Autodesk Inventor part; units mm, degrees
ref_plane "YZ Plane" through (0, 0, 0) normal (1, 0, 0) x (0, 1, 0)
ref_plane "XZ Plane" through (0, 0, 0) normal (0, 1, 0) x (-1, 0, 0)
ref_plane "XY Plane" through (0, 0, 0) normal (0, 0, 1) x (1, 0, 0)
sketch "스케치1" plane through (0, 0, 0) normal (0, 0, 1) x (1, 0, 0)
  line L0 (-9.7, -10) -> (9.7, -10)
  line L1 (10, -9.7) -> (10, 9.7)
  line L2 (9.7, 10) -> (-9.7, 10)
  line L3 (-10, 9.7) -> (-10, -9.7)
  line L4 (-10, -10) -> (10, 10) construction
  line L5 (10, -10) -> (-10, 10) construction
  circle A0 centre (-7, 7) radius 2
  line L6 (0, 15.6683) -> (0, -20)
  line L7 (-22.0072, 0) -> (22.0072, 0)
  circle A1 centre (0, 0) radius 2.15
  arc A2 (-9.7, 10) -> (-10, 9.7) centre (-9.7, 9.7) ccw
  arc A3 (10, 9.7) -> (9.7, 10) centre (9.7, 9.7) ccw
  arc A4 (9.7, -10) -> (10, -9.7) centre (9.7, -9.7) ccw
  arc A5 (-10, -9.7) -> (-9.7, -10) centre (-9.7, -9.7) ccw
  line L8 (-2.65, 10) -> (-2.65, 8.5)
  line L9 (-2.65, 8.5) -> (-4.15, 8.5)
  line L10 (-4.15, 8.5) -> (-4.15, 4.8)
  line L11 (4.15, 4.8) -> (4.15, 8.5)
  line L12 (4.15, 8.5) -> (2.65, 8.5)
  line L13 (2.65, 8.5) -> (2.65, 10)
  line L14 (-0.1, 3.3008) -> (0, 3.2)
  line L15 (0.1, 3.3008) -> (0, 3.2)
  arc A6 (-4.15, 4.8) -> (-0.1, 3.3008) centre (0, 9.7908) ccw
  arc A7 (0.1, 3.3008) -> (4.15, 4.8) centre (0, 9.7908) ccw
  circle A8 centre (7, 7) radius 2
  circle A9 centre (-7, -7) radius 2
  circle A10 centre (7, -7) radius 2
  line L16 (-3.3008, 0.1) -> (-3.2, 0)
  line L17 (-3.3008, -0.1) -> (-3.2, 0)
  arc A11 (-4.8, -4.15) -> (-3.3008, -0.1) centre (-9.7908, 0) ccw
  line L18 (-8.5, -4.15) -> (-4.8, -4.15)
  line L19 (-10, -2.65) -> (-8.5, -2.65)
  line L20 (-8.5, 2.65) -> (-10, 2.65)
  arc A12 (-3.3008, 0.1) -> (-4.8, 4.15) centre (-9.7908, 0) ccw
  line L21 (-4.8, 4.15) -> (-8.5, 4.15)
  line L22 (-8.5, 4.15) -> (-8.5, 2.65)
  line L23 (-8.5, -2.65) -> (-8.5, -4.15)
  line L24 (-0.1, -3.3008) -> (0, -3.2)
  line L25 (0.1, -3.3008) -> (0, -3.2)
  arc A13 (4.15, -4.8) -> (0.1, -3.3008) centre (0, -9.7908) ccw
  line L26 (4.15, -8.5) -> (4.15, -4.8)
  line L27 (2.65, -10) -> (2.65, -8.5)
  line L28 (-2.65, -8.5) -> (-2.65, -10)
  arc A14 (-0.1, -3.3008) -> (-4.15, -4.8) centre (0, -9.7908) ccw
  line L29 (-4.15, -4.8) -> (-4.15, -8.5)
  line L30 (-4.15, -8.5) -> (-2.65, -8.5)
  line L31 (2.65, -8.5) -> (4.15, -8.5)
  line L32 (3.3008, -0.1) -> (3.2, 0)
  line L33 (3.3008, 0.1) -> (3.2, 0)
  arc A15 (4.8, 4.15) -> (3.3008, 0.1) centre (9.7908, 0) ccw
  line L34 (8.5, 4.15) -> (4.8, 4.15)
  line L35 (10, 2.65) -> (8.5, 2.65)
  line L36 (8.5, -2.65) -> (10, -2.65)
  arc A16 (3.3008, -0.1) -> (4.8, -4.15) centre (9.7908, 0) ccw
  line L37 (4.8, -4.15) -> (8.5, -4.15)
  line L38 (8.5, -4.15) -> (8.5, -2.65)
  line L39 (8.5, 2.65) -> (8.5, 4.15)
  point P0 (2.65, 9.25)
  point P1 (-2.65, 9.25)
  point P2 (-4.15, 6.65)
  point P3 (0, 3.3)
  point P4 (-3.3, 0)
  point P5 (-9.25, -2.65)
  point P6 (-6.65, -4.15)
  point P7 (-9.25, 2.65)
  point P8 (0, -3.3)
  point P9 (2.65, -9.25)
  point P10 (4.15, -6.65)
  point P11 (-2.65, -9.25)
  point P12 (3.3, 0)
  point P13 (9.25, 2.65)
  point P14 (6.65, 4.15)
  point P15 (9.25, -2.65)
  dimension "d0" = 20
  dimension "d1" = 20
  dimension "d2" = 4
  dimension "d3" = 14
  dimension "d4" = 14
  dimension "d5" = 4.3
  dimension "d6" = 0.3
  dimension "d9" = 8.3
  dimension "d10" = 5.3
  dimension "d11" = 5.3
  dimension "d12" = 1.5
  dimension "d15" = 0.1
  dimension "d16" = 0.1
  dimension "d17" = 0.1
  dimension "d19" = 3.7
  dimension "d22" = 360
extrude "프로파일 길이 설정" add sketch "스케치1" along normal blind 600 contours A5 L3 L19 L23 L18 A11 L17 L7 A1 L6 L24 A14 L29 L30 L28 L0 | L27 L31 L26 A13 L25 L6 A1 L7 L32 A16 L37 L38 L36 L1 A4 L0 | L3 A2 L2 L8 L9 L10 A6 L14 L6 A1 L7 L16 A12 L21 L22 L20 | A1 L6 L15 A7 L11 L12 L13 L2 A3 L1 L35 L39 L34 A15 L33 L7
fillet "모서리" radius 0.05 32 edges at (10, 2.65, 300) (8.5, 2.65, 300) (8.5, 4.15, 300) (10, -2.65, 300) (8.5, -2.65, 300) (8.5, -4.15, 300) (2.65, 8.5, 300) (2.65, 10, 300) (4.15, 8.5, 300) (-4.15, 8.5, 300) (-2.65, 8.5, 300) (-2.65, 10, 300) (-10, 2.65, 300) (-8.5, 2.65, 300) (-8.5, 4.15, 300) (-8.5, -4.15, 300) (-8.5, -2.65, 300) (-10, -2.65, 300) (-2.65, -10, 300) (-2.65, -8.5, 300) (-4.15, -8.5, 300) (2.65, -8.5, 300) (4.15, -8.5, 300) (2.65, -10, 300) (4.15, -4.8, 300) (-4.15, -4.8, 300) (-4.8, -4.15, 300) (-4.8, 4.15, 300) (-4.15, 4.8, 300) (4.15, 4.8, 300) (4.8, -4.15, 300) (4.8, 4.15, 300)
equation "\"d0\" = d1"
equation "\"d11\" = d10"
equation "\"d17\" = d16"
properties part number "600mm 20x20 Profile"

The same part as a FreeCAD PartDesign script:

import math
import FreeCAD as App
import Part
import Sketcher
from FreeCAD import Vector


def edges_at(feature, points):
    """Names of the edges that pass closest to the given points."""
    edges = feature.Shape.Edges
    near = lambda p: min(range(len(edges)), key=lambda i: edges[i].distToShape(Part.Vertex(*p))[0])
    return sorted({f"Edge{near(p) + 1}" for p in points})

doc = App.newDocument("Part")
body = doc.addObject("PartDesign::Body", "Body")

# Sketch on XY plane
sketch1 = body.newObject("Sketcher::SketchObject", "Sketch")
sketch1.AttachmentSupport = (doc.getObject("XY_Plane"), [""])
sketch1.MapMode = "FlatFace"
sketch1.addGeometry([
    Part.ArcOfCircle(Part.Circle(Vector(-9.7, -9.7, 0), Vector(0, 0, 1), 0.3), math.radians(180), math.radians(270)),  # 0
    Part.LineSegment(Vector(-9.7, -10, 0), Vector(-2.65, -10, 0)),  # 1
    Part.LineSegment(Vector(-2.65, -10, 0), Vector(-2.65, -8.5, 0)),  # 2
    Part.LineSegment(Vector(-2.65, -8.5, 0), Vector(-4.15, -8.5, 0)),  # 3
    Part.LineSegment(Vector(-4.15, -8.5, 0), Vector(-4.15, -4.8, 0)),  # 4
    Part.ArcOfCircle(Part.Circle(Vector(0, -9.79, 0), Vector(0, 0, 1), 6.49), math.radians(91), math.radians(130)),  # 5
    Part.LineSegment(Vector(-0.1, -3.3, 0), Vector(0, -3.2, 0)),  # 6
    Part.LineSegment(Vector(0, -3.2, 0), Vector(0.1, -3.3, 0)),  # 7
    Part.ArcOfCircle(Part.Circle(Vector(0, -9.79, 0), Vector(0, 0, 1), 6.49), math.radians(50), math.radians(89)),  # 8
    Part.LineSegment(Vector(4.15, -4.8, 0), Vector(4.15, -8.5, 0)),  # 9
    Part.LineSegment(Vector(4.15, -8.5, 0), Vector(2.65, -8.5, 0)),  # 10
    Part.LineSegment(Vector(2.65, -8.5, 0), Vector(2.65, -10, 0)),  # 11
    Part.LineSegment(Vector(2.65, -10, 0), Vector(9.7, -10, 0)),  # 12
    Part.ArcOfCircle(Part.Circle(Vector(9.7, -9.7, 0), Vector(0, 0, 1), 0.3), math.radians(-90), math.radians(0)),  # 13
    Part.LineSegment(Vector(10, -9.7, 0), Vector(10, -2.65, 0)),  # 14
    Part.LineSegment(Vector(10, -2.65, 0), Vector(8.5, -2.65, 0)),  # 15
    Part.LineSegment(Vector(8.5, -2.65, 0), Vector(8.5, -4.15, 0)),  # 16
    Part.LineSegment(Vector(8.5, -4.15, 0), Vector(4.8, -4.15, 0)),  # 17
    Part.ArcOfCircle(Part.Circle(Vector(9.79, 0, 0), Vector(0, 0, 1), 6.49), math.radians(-179), math.radians(-140)),  # 18
    Part.LineSegment(Vector(3.3, -0.1, 0), Vector(3.2, 0, 0)),  # 19
    Part.LineSegment(Vector(3.2, 0, 0), Vector(3.3, 0.1, 0)),  # 20
    Part.ArcOfCircle(Part.Circle(Vector(9.79, 0, 0), Vector(0, 0, 1), 6.49), math.radians(140), math.radians(179)),  # 21
    Part.LineSegment(Vector(4.8, 4.15, 0), Vector(8.5, 4.15, 0)),  # 22
    Part.LineSegment(Vector(8.5, 4.15, 0), Vector(8.5, 2.65, 0)),  # 23
    Part.LineSegment(Vector(8.5, 2.65, 0), Vector(10, 2.65, 0)),  # 24
    Part.LineSegment(Vector(10, 2.65, 0), Vector(10, 9.7, 0)),  # 25
    Part.ArcOfCircle(Part.Circle(Vector(9.7, 9.7, 0), Vector(0, 0, 1), 0.3), math.radians(0), math.radians(90)),  # 26
    Part.LineSegment(Vector(9.7, 10, 0), Vector(2.65, 10, 0)),  # 27
    Part.LineSegment(Vector(2.65, 10, 0), Vector(2.65, 8.5, 0)),  # 28
    Part.LineSegment(Vector(2.65, 8.5, 0), Vector(4.15, 8.5, 0)),  # 29
    Part.LineSegment(Vector(4.15, 8.5, 0), Vector(4.15, 4.8, 0)),  # 30
    Part.ArcOfCircle(Part.Circle(Vector(0, 9.79, 0), Vector(0, 0, 1), 6.49), math.radians(-89), math.radians(-50)),  # 31
    Part.LineSegment(Vector(0.1, 3.3, 0), Vector(0, 3.2, 0)),  # 32
    Part.LineSegment(Vector(0, 3.2, 0), Vector(-0.1, 3.3, 0)),  # 33
    Part.ArcOfCircle(Part.Circle(Vector(0, 9.79, 0), Vector(0, 0, 1), 6.49), math.radians(-130), math.radians(-91)),  # 34
    Part.LineSegment(Vector(-4.15, 4.8, 0), Vector(-4.15, 8.5, 0)),  # 35
    Part.LineSegment(Vector(-4.15, 8.5, 0), Vector(-2.65, 8.5, 0)),  # 36
    Part.LineSegment(Vector(-2.65, 8.5, 0), Vector(-2.65, 10, 0)),  # 37
    Part.LineSegment(Vector(-2.65, 10, 0), Vector(-9.7, 10, 0)),  # 38
    Part.ArcOfCircle(Part.Circle(Vector(-9.7, 9.7, 0), Vector(0, 0, 1), 0.3), math.radians(90), math.radians(180)),  # 39
    Part.LineSegment(Vector(-10, 9.7, 0), Vector(-10, 2.65, 0)),  # 40
    Part.LineSegment(Vector(-10, 2.65, 0), Vector(-8.5, 2.65, 0)),  # 41
    Part.LineSegment(Vector(-8.5, 2.65, 0), Vector(-8.5, 4.15, 0)),  # 42
    Part.LineSegment(Vector(-8.5, 4.15, 0), Vector(-4.8, 4.15, 0)),  # 43
    Part.ArcOfCircle(Part.Circle(Vector(-9.79, 0, 0), Vector(0, 0, 1), 6.49), math.radians(1), math.radians(40)),  # 44
    Part.LineSegment(Vector(-3.3, 0.1, 0), Vector(-3.2, 0, 0)),  # 45
    Part.LineSegment(Vector(-3.2, 0, 0), Vector(-3.3, -0.1, 0)),  # 46
    Part.ArcOfCircle(Part.Circle(Vector(-9.79, 0, 0), Vector(0, 0, 1), 6.49), math.radians(-40), math.radians(-1)),  # 47
    Part.LineSegment(Vector(-4.8, -4.15, 0), Vector(-8.5, -4.15, 0)),  # 48
    Part.LineSegment(Vector(-8.5, -4.15, 0), Vector(-8.5, -2.65, 0)),  # 49
    Part.LineSegment(Vector(-8.5, -2.65, 0), Vector(-10, -2.65, 0)),  # 50
    Part.LineSegment(Vector(-10, -2.65, 0), Vector(-10, -9.7, 0)),  # 51
    Part.Circle(Vector(0, 0, 0), Vector(0, 0, 1), 2.15),  # 52
    Part.Circle(Vector(-7, -7, 0), Vector(0, 0, 1), 2),  # 53
    Part.Circle(Vector(-7, 7, 0), Vector(0, 0, 1), 2),  # 54
    Part.Circle(Vector(7, -7, 0), Vector(0, 0, 1), 2),  # 55
    Part.Circle(Vector(7, 7, 0), Vector(0, 0, 1), 2),  # 56
], False)
sketch1.addConstraint([
    Sketcher.Constraint("Tangent", 0, 2, 1, 1),
    Sketcher.Constraint("Coincident", 1, 2, 2, 1),
    Sketcher.Constraint("Coincident", 2, 2, 3, 1),
    Sketcher.Constraint("Coincident", 3, 2, 4, 1),
    Sketcher.Constraint("Coincident", 4, 2, 5, 2),
    Sketcher.Constraint("Coincident", 5, 1, 6, 1),
    Sketcher.Constraint("Coincident", 6, 2, 7, 1),
    Sketcher.Constraint("Coincident", 7, 2, 8, 2),
    Sketcher.Constraint("Coincident", 8, 1, 9, 1),
    Sketcher.Constraint("Coincident", 9, 2, 10, 1),
    Sketcher.Constraint("Coincident", 10, 2, 11, 1),
    Sketcher.Constraint("Coincident", 11, 2, 12, 1),
    Sketcher.Constraint("Tangent", 12, 2, 13, 1),
    Sketcher.Constraint("Tangent", 13, 2, 14, 1),
    Sketcher.Constraint("Coincident", 14, 2, 15, 1),
    Sketcher.Constraint("Coincident", 15, 2, 16, 1),
    Sketcher.Constraint("Coincident", 16, 2, 17, 1),
    Sketcher.Constraint("Coincident", 17, 2, 18, 2),
    Sketcher.Constraint("Coincident", 18, 1, 19, 1),
    Sketcher.Constraint("Coincident", 19, 2, 20, 1),
    Sketcher.Constraint("Coincident", 20, 2, 21, 2),
    Sketcher.Constraint("Coincident", 21, 1, 22, 1),
    Sketcher.Constraint("Coincident", 22, 2, 23, 1),
    Sketcher.Constraint("Coincident", 23, 2, 24, 1),
    Sketcher.Constraint("Coincident", 24, 2, 25, 1),
    Sketcher.Constraint("Tangent", 25, 2, 26, 1),
    Sketcher.Constraint("Tangent", 26, 2, 27, 1),
    Sketcher.Constraint("Coincident", 27, 2, 28, 1),
    Sketcher.Constraint("Coincident", 28, 2, 29, 1),
    Sketcher.Constraint("Coincident", 29, 2, 30, 1),
    Sketcher.Constraint("Coincident", 30, 2, 31, 2),
    Sketcher.Constraint("Coincident", 31, 1, 32, 1),
    Sketcher.Constraint("Coincident", 32, 2, 33, 1),
    Sketcher.Constraint("Coincident", 33, 2, 34, 2),
    Sketcher.Constraint("Coincident", 34, 1, 35, 1),
    Sketcher.Constraint("Coincident", 35, 2, 36, 1),
    Sketcher.Constraint("Coincident", 36, 2, 37, 1),
    Sketcher.Constraint("Coincident", 37, 2, 38, 1),
    Sketcher.Constraint("Tangent", 38, 2, 39, 1),
    Sketcher.Constraint("Tangent", 39, 2, 40, 1),
    Sketcher.Constraint("Coincident", 40, 2, 41, 1),
    Sketcher.Constraint("Coincident", 41, 2, 42, 1),
    Sketcher.Constraint("Coincident", 42, 2, 43, 1),
    Sketcher.Constraint("Coincident", 43, 2, 44, 2),
    Sketcher.Constraint("Coincident", 44, 1, 45, 1),
    Sketcher.Constraint("Coincident", 45, 2, 46, 1),
    Sketcher.Constraint("Coincident", 46, 2, 47, 2),
    Sketcher.Constraint("Coincident", 47, 1, 48, 1),
    Sketcher.Constraint("Coincident", 48, 2, 49, 1),
    Sketcher.Constraint("Coincident", 49, 2, 50, 1),
    Sketcher.Constraint("Coincident", 50, 2, 51, 1),
    Sketcher.Constraint("Tangent", 51, 2, 0, 1),
    Sketcher.Constraint("Horizontal", 1),
    Sketcher.Constraint("Vertical", 2),
    Sketcher.Constraint("Horizontal", 3),
    Sketcher.Constraint("Vertical", 4),
    Sketcher.Constraint("Vertical", 9),
    Sketcher.Constraint("Horizontal", 10),
    Sketcher.Constraint("Vertical", 11),
    Sketcher.Constraint("Horizontal", 12),
    Sketcher.Constraint("Vertical", 14),
    Sketcher.Constraint("Horizontal", 15),
    Sketcher.Constraint("Vertical", 16),
    Sketcher.Constraint("Horizontal", 17),
    Sketcher.Constraint("Horizontal", 22),
    Sketcher.Constraint("Vertical", 23),
    Sketcher.Constraint("Horizontal", 24),
    Sketcher.Constraint("Vertical", 25),
    Sketcher.Constraint("Horizontal", 27),
    Sketcher.Constraint("Vertical", 28),
    Sketcher.Constraint("Horizontal", 29),
    Sketcher.Constraint("Vertical", 30),
    Sketcher.Constraint("Vertical", 35),
    Sketcher.Constraint("Horizontal", 36),
    Sketcher.Constraint("Vertical", 37),
    Sketcher.Constraint("Horizontal", 38),
    Sketcher.Constraint("Vertical", 40),
    Sketcher.Constraint("Horizontal", 41),
    Sketcher.Constraint("Vertical", 42),
    Sketcher.Constraint("Horizontal", 43),
    Sketcher.Constraint("Horizontal", 48),
    Sketcher.Constraint("Vertical", 49),
    Sketcher.Constraint("Horizontal", 50),
    Sketcher.Constraint("Vertical", 51),
    Sketcher.Constraint("Coincident", 52, 3, -1, 1),
    Sketcher.Constraint("Coincident", 8, 3, 5, 3),
    Sketcher.Constraint("Coincident", 21, 3, 18, 3),
    Sketcher.Constraint("Coincident", 34, 3, 31, 3),
    Sketcher.Constraint("Coincident", 47, 3, 44, 3),
    Sketcher.Constraint("Equal", 5, 8),
    Sketcher.Constraint("Equal", 0, 13),
    Sketcher.Constraint("Equal", 8, 18),
    Sketcher.Constraint("Equal", 18, 21),
    Sketcher.Constraint("Equal", 13, 26),
    Sketcher.Constraint("Equal", 21, 31),
    Sketcher.Constraint("Equal", 31, 34),
    Sketcher.Constraint("Equal", 26, 39),
    Sketcher.Constraint("Equal", 34, 44),
    Sketcher.Constraint("Equal", 44, 47),
    Sketcher.Constraint("Equal", 53, 54),
    Sketcher.Constraint("Equal", 54, 55),
    Sketcher.Constraint("Equal", 55, 56),
    Sketcher.Constraint("Symmetric", 0, 3, 26, 3, -1, 1),
    Sketcher.Constraint("Symmetric", 5, 3, 31, 3, -1, 1),
    Sketcher.Constraint("Symmetric", 13, 3, 39, 3, -1, 1),
    Sketcher.Constraint("Symmetric", 18, 3, 44, 3, -1, 1),
    Sketcher.Constraint("Symmetric", 54, 3, 55, 3, -1, 1),
    Sketcher.Constraint("Symmetric", 53, 3, 56, 3, -1, 1),
    Sketcher.Constraint("Symmetric", 2, 2, 28, 2, -1, 1),
    Sketcher.Constraint("Symmetric", 6, 2, 32, 2, -1, 1),
    Sketcher.Constraint("Symmetric", 9, 2, 35, 2, -1, 1),
    Sketcher.Constraint("Symmetric", 15, 2, 41, 2, -1, 1),
    Sketcher.Constraint("Symmetric", 19, 2, 45, 2, -1, 1),
    Sketcher.Constraint("Symmetric", 22, 2, 48, 2, -1, 1),
    Sketcher.Constraint("Symmetric", 0, 3, 13, 3, -2),
    Sketcher.Constraint("Symmetric", 53, 3, 55, 3, -2),
    Sketcher.Constraint("Symmetric", 5, 1, 7, 2, -2),
    Sketcher.Constraint("Symmetric", 3, 2, 9, 2, -2),
    Sketcher.Constraint("Symmetric", 23, 2, 41, 2, -2),
    Sketcher.Constraint("Symmetric", 21, 1, 43, 2, -2),
    Sketcher.Constraint("PointOnObject", 6, 2, -2),
    Sketcher.Constraint("PointOnObject", 19, 2, -1),
    Sketcher.Constraint("Perpendicular", 6, 19),
    Sketcher.Constraint("Perpendicular", 7, 20),
    Sketcher.Constraint("Perpendicular", 19, 32),
    Sketcher.Constraint("Perpendicular", 20, 33),
    Sketcher.Constraint("Perpendicular", 32, 45),
    Sketcher.Constraint("Perpendicular", 33, 46),
    Sketcher.Constraint("Horizontal", 30, 2, 34, 1),
    Sketcher.Constraint("Horizontal", 17, 2, 47, 1),
    Sketcher.Constraint("Horizontal", 15, 2, 49, 2),
    Sketcher.Constraint("Vertical", 11, 2, 27, 2),
    Sketcher.Constraint("Vertical", 2, 2, 36, 2),
    Sketcher.Constraint("Equal", 10, 15),
    Sketcher.Constraint("Equal", 50, 2),
    Sketcher.Constraint("Equal", 48, 4),
    Sketcher.Constraint("Equal", 38, 14),
    Sketcher.Constraint("Equal", 11, 16),
    Sketcher.Constraint("Equal", 7, 19),
    Sketcher.Constraint("Diameter", 53, 4.0),
    Sketcher.Constraint("Diameter", 52, 4.3),
    Sketcher.Constraint("Radius", 0, 0.3),
    Sketcher.Constraint("DistanceX", 3, 2, 3, 1, 1.5),
    Sketcher.Constraint("DistanceX", 17, 2, 17, 1, 3.7),
    Sketcher.Constraint("DistanceX", 5, 1, -1, 1, 0.1),
    Sketcher.Constraint("DistanceX", 53, 3, -1, 1, 7.0),
    Sketcher.Constraint("DistanceY", 53, 3, -1, 1, 7.0),
    Sketcher.Constraint("DistanceY", 0, 2, -1, 1, 10.0),
    Sketcher.Constraint("DistanceX", -1, 1, 13, 2, 10.0),
    Sketcher.Constraint("DistanceX", 1, 1, 1, 2, 7.05),
    Sketcher.Constraint("DistanceY", 6, 2, -1, 1, 3.2),
    Sketcher.Constraint("Radius", 5, 6.4908),
])
pad1 = body.newObject("PartDesign::Pad", "Pad")
pad1.Profile = sketch1
pad1.Length = 600
doc.recompute()

fillet = body.newObject("PartDesign::Fillet", "Fillet")
fillet.Base = (pad1, edges_at(pad1, [
    (10, 2.65, 300),
    (8.5, 2.65, 300),
    (8.5, 4.15, 300),
    (10, -2.65, 300),
    (8.5, -2.65, 300),
    (8.5, -4.15, 300),
    (2.65, 8.5, 300),
    (2.65, 10, 300),
    (4.15, 8.5, 300),
    (-4.15, 8.5, 300),
    (-2.65, 8.5, 300),
    (-2.65, 10, 300),
    (-10, 2.65, 300),
    (-8.5, 2.65, 300),
    (-8.5, 4.15, 300),
    (-8.5, -4.15, 300),
    (-8.5, -2.65, 300),
    (-10, -2.65, 300),
    (-2.65, -10, 300),
    (-2.65, -8.5, 300),
    (-4.15, -8.5, 300),
    (2.65, -8.5, 300),
    (4.15, -8.5, 300),
    (2.65, -10, 300),
    (4.15, -4.8, 300),
    (-4.15, -4.8, 300),
    (-4.8, -4.15, 300),
    (-4.8, 4.15, 300),
    (-4.15, 4.8, 300),
    (4.15, 4.8, 300),
    (4.8, -4.15, 300),
    (4.8, 4.15, 300),
]))
fillet.Radius = 0.05

doc.recompute()
